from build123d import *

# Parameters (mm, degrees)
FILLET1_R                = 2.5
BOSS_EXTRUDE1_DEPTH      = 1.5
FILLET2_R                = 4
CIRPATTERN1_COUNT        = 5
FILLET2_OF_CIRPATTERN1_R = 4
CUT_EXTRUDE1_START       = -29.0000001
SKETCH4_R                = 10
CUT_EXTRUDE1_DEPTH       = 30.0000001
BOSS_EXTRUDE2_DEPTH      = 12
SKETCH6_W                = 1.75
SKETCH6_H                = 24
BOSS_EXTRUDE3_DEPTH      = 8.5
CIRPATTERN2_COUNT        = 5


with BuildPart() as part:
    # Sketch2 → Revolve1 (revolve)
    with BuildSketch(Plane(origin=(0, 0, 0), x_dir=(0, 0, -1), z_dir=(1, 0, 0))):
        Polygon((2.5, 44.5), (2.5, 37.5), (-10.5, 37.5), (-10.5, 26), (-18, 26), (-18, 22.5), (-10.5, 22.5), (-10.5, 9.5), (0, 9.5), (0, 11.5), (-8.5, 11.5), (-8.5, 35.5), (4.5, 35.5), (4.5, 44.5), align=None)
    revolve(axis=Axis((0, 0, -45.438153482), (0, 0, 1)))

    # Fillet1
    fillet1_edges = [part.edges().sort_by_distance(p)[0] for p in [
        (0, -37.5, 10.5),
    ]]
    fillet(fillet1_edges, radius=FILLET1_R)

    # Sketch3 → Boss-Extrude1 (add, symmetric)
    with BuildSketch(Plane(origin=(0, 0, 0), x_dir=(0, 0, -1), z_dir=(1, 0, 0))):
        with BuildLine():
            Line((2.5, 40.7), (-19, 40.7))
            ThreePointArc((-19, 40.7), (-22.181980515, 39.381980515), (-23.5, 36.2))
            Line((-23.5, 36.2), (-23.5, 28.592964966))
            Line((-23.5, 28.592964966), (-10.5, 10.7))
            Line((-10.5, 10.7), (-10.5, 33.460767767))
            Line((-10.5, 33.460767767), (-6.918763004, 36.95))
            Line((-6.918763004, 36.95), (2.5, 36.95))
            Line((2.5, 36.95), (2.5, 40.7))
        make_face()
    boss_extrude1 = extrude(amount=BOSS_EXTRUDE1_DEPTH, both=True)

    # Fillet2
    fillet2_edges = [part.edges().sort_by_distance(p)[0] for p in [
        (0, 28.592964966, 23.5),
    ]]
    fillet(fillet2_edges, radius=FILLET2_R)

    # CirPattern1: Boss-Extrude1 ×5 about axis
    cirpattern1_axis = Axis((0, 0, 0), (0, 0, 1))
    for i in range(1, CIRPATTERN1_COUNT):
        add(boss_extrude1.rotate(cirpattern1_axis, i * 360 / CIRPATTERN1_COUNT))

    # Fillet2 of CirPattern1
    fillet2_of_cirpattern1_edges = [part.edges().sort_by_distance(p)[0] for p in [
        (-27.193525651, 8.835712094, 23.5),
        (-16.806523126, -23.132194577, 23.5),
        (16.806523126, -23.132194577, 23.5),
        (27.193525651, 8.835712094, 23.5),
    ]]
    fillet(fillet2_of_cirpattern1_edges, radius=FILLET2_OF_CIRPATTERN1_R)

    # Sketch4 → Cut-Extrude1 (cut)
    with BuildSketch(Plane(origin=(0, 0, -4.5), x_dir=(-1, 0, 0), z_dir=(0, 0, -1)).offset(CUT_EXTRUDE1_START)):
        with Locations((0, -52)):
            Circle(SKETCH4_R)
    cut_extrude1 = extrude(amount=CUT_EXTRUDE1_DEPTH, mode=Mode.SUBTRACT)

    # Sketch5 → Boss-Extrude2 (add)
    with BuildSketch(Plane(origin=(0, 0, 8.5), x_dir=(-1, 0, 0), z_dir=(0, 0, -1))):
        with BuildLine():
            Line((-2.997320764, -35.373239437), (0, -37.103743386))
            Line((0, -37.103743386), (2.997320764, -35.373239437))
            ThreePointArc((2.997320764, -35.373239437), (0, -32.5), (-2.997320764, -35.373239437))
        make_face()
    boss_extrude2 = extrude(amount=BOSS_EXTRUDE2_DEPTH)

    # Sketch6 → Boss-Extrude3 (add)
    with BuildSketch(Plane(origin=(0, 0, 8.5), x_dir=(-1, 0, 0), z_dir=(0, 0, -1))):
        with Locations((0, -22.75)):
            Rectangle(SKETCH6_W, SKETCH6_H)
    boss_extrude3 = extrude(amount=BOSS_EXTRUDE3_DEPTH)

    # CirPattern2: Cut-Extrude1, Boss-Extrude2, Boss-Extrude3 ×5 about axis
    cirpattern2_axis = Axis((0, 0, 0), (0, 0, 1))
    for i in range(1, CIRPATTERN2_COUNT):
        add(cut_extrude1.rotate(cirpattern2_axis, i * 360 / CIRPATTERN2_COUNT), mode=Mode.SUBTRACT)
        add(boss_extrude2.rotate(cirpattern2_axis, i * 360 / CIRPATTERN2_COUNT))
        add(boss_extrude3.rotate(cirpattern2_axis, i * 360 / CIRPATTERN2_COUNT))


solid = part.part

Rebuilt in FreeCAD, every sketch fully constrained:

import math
import FreeCAD as App
import Part
import Sketcher
from FreeCAD import Vector
Q = App.Units.Quantity


def edges_at(feature, points):
    """Names of the edges that pass closest to the given points."""
    edges = feature.Shape.Edges
    near = lambda p: min(range(len(edges)), key=lambda i: edges[i].distToShape(Part.Vertex(*p))[0])
    return sorted({f"Edge{near(p) + 1}" for p in points})


def add_polygon(sketch, points):
    """Adds a closed chain of lines whose ends are joined by coincident constraints."""
    first, n = sketch.GeometryCount, len(points)
    for a, b in zip(points, points[1:] + points[:1]):
        sketch.addGeometry(Part.LineSegment(App.Vector(*a, 0), App.Vector(*b, 0)), False)
    for i in range(n):
        sketch.addConstraint(Sketcher.Constraint("Coincident", first + i, 2, first + (i + 1) % n, 1))

doc = App.newDocument("Part")
body = doc.addObject("PartDesign::Body", "Body")

sketch1 = body.newObject("Sketcher::SketchObject", "Sketch")
sketch1.AttachmentSupport = (doc.getObject("YZ_Plane"), [""])
sketch1.MapMode = "FlatFace"
add_polygon(sketch1, [(44.5, -2.5), (37.5, -2.5), (37.5, 10.5), (26, 10.5), (26, 18), (22.5, 18), (22.5, 10.5), (9.5, 10.5), (9.5, 0), (11.5, 0), (11.5, 8.5), (35.5, 8.5), (35.5, -4.5), (44.5, -4.5)])
sketch1.addConstraint(Sketcher.Constraint("Horizontal", 0))
sketch1.addConstraint(Sketcher.Constraint("Vertical", 1))
sketch1.addConstraint(Sketcher.Constraint("Horizontal", 2))
sketch1.addConstraint(Sketcher.Constraint("Vertical", 3))
sketch1.addConstraint(Sketcher.Constraint("Horizontal", 4))
sketch1.addConstraint(Sketcher.Constraint("Vertical", 5))
sketch1.addConstraint(Sketcher.Constraint("Horizontal", 6))
sketch1.addConstraint(Sketcher.Constraint("Vertical", 7))
sketch1.addConstraint(Sketcher.Constraint("Horizontal", 8))
sketch1.addConstraint(Sketcher.Constraint("Vertical", 9))
sketch1.addConstraint(Sketcher.Constraint("Horizontal", 10))
sketch1.addConstraint(Sketcher.Constraint("Vertical", 11))
sketch1.addConstraint(Sketcher.Constraint("Horizontal", 12))
sketch1.addConstraint(Sketcher.Constraint("Vertical", 13))
sketch1.addConstraint(Sketcher.Constraint("PointOnObject", 7, 2, -1))
sketch1.addConstraint(Sketcher.Constraint("Horizontal", 2, 2, 5, 2))
sketch1.addConstraint(Sketcher.Constraint("Equal", 6, 1))
sketch1.addConstraint(Sketcher.Constraint("Equal", 1, 11))
sketch1.addConstraint(Sketcher.Constraint("Equal", 8, 13))
sketch1.addConstraint(Sketcher.Constraint("DistanceX", 0, 2, 0, 1, Q("7 mm")))
sketch1.addConstraint(Sketcher.Constraint("DistanceX", 6, 2, 6, 1, Q("13 mm")))
sketch1.addConstraint(Sketcher.Constraint("DistanceX", 8, 1, 8, 2, Q("2 mm")))
sketch1.addConstraint(Sketcher.Constraint("DistanceX", 10, 1, 10, 2, Q("24 mm")))
sketch1.addConstraint(Sketcher.Constraint("DistanceX", 12, 1, 12, 2, Q("9 mm")))
sketch1.addConstraint(Sketcher.Constraint("DistanceX", 2, 2, 2, 1, Q("11.5 mm")))
sketch1.addConstraint(Sketcher.Constraint("DistanceY", 3, 1, 3, 2, Q("7.5 mm")))
sketch1.addConstraint(Sketcher.Constraint("DistanceY", 7, 2, 7, 1, Q("10.5 mm")))
sketch1.addConstraint(Sketcher.Constraint("DistanceX", -1, 1, 2, 2, Q("26 mm")))
revolution = body.newObject("PartDesign::Revolution", "Revolution")
revolution.Profile = sketch1
revolution.ReferenceAxis = (sketch1, ["V_Axis"])
revolution.Angle = 360
doc.recompute()

fillet = body.newObject("PartDesign::Fillet", "Fillet")
fillet.Base = (revolution, edges_at(revolution, [(0, -37.5, 10.5)]))
fillet.Radius = 2.5

sketch2 = body.newObject("Sketcher::SketchObject", "Sketch001")
sketch2.AttachmentSupport = (doc.getObject("YZ_Plane"), [""])
sketch2.MapMode = "FlatFace"
sketch2.addGeometry(Part.LineSegment(Vector(40.7, -2.5, 0), Vector(40.7, 19, 0)), False)
sketch2.addGeometry(Part.ArcOfCircle(Part.Circle(Vector(36.2, 19, 0), Vector(0, 0, 1), 4.5), math.radians(0), math.radians(90)), False)
sketch2.addGeometry(Part.LineSegment(Vector(36.2, 23.5, 0), Vector(28.6, 23.5, 0)), False)
sketch2.addGeometry(Part.LineSegment(Vector(28.6, 23.5, 0), Vector(10.7, 10.5, 0)), False)
sketch2.addGeometry(Part.LineSegment(Vector(10.7, 10.5, 0), Vector(33.5, 10.5, 0)), False)
sketch2.addGeometry(Part.LineSegment(Vector(33.5, 10.5, 0), Vector(37, 6.9, 0)), False)
sketch2.addGeometry(Part.LineSegment(Vector(37, 6.9, 0), Vector(37, -2.5, 0)), False)
sketch2.addGeometry(Part.LineSegment(Vector(37, -2.5, 0), Vector(40.7, -2.5, 0)), False)
sketch2.addConstraint(Sketcher.Constraint("Tangent", 0, 2, 1, 1))
sketch2.addConstraint(Sketcher.Constraint("Tangent", 1, 2, 2, 1))
sketch2.addConstraint(Sketcher.Constraint("Coincident", 2, 2, 3, 1))
sketch2.addConstraint(Sketcher.Constraint("Coincident", 3, 2, 4, 1))
sketch2.addConstraint(Sketcher.Constraint("Coincident", 4, 2, 5, 1))
sketch2.addConstraint(Sketcher.Constraint("Coincident", 5, 2, 6, 1))
sketch2.addConstraint(Sketcher.Constraint("Coincident", 6, 2, 7, 1))
sketch2.addConstraint(Sketcher.Constraint("Coincident", 7, 2, 0, 1))
sketch2.addConstraint(Sketcher.Constraint("Vertical", 0))
sketch2.addConstraint(Sketcher.Constraint("Horizontal", 2))
sketch2.addConstraint(Sketcher.Constraint("Horizontal", 4))
sketch2.addConstraint(Sketcher.Constraint("Vertical", 6))
sketch2.addConstraint(Sketcher.Constraint("Horizontal", 7))
sketch2.addConstraint(Sketcher.Constraint("Radius", 1, Q("4.5 mm")))
sketch2.addConstraint(Sketcher.Constraint("Angle", 3, Q("-144 deg")))
sketch2.addConstraint(Sketcher.Constraint("Distance", 5, Q("5 mm")))
sketch2.addConstraint(Sketcher.Constraint("DistanceY", 0, 1, 0, 2, Q("21.5 mm")))
sketch2.addConstraint(Sketcher.Constraint("DistanceY", -1, 1, 1, 3, Q("19 mm")))
sketch2.addConstraint(Sketcher.Constraint("DistanceY", 3, 2, 2, 2, Q("13 mm")))
sketch2.addConstraint(Sketcher.Constraint("DistanceX", 3, 2, 0, 2, Q("30 mm")))
sketch2.addConstraint(Sketcher.Constraint("DistanceX", 7, 1, 7, 2, Q("3.75 mm")))
sketch2.addConstraint(Sketcher.Constraint("DistanceX", -1, 1, 1, 3, Q("36.2 mm")))
sketch2.addConstraint(Sketcher.Constraint("DistanceX", 4, 1, 4, 2, Q("22.760768 mm")))
pad1 = body.newObject("PartDesign::Pad", "Pad")
pad1.Profile = sketch2
pad1.Length = 3
pad1.Midplane = True
doc.recompute()

fillet2 = body.newObject("PartDesign::Fillet", "Fillet001")
fillet2.Base = (pad1, edges_at(pad1, [(0, 28.593, 23.5)]))
fillet2.Radius = 4
doc.recompute()

polarpattern = body.newObject("PartDesign::PolarPattern", "PolarPattern")
polarpattern.Originals = [pad1]
polarpattern.Axis = (doc.getObject("Z_Axis"), [""])
polarpattern.Angle = 360
polarpattern.Occurrences = 5
body.Tip = polarpattern
doc.recompute()

fillet3 = body.newObject("PartDesign::Fillet", "Fillet002")
fillet3.Base = (polarpattern, edges_at(polarpattern, [
    (-27.194, 8.836, 23.5),
    (-16.807, -23.132, 23.5),
    (16.807, -23.132, 23.5),
    (27.194, 8.836, 23.5),
]))
fillet3.Radius = 4

sketch3 = body.newObject("Sketcher::SketchObject", "Sketch002")
sketch3.AttachmentSupport = (doc.getObject("XY_Plane"), [""])
sketch3.MapMode = "FlatFace"
sketch3.AttachmentOffset = App.Placement(Vector(0, 0, 24.5), App.Rotation())
sketch3.addGeometry(Part.Circle(Vector(0, -52, 0), Vector(0, 0, 1), 10), False)
sketch3.addConstraint(Sketcher.Constraint("PointOnObject", 0, 3, -2))
sketch3.addConstraint(Sketcher.Constraint("Diameter", 0, Q("20 mm")))
sketch3.addConstraint(Sketcher.Constraint("DistanceY", 0, 3, -1, 1, Q("52 mm")))
pocket1 = body.newObject("PartDesign::Pocket", "Pocket")
pocket1.Profile = sketch3
pocket1.Length = 30

sketch4 = body.newObject("Sketcher::SketchObject", "Sketch003")
sketch4.AttachmentSupport = (doc.getObject("XY_Plane"), [""])
sketch4.MapMode = "FlatFace"
sketch4.AttachmentOffset = App.Placement(Vector(0, 0, 8.5), App.Rotation())
sketch4.addGeometry(Part.LineSegment(Vector(3, -35.4, 0), Vector(0, -37.1, 0)), False)
sketch4.addGeometry(Part.LineSegment(Vector(0, -37.1, 0), Vector(-3, -35.4, 0)), False)
sketch4.addGeometry(Part.ArcOfCircle(Part.Circle(Vector(0, -35.5, 0), Vector(0, 0, 1), 3), math.radians(2), math.radians(178)), False)
sketch4.addConstraint(Sketcher.Constraint("Coincident", 0, 2, 1, 1))
sketch4.addConstraint(Sketcher.Constraint("Coincident", 1, 2, 2, 2))
sketch4.addConstraint(Sketcher.Constraint("Coincident", 2, 1, 0, 1))
sketch4.addConstraint(Sketcher.Constraint("Symmetric", 1, 2, 2, 1, -2))
sketch4.addConstraint(Sketcher.Constraint("PointOnObject", 0, 2, -2))
sketch4.addConstraint(Sketcher.Constraint("Radius", 2, Q("3 mm")))
sketch4.addConstraint(Sketcher.Constraint("Angle", 0, Q("-150 deg")))
sketch4.addConstraint(Sketcher.Constraint("DistanceY", 2, 3, -1, 1, Q("35.5 mm")))
sketch4.addConstraint(Sketcher.Constraint("DistanceX", 1, 2, -1, 1, Q("2.997321 mm")))
pad2 = body.newObject("PartDesign::Pad", "Pad001")
pad2.Profile = sketch4
pad2.Length = 12
pad2.Reversed = True

sketch5 = body.newObject("Sketcher::SketchObject", "Sketch004")
sketch5.AttachmentSupport = (doc.getObject("XY_Plane"), [""])
sketch5.MapMode = "FlatFace"
sketch5.AttachmentOffset = App.Placement(Vector(0, 0, 8.5), App.Rotation())
add_polygon(sketch5, [(0.9, -10.8), (0.9, -34.8), (-0.9, -34.8), (-0.9, -10.8)])
sketch5.addConstraint(Sketcher.Constraint("Vertical", 0))
sketch5.addConstraint(Sketcher.Constraint("Horizontal", 1))
sketch5.addConstraint(Sketcher.Constraint("Vertical", 2))
sketch5.addConstraint(Sketcher.Constraint("Horizontal", 3))
sketch5.addConstraint(Sketcher.Constraint("DistanceY", 0, 2, 0, 1, Q("24 mm")))
sketch5.addConstraint(Sketcher.Constraint("DistanceX", 1, 2, 1, 1, Q("1.75 mm")))
sketch5.addConstraint(Sketcher.Constraint("DistanceY", 0, 2, -1, 1, Q("34.75 mm")))
sketch5.addConstraint(Sketcher.Constraint("DistanceX", -1, 1, 0, 2, Q("0.875 mm")))
pad3 = body.newObject("PartDesign::Pad", "Pad002")
pad3.Profile = sketch5
pad3.Length = 8.5
pad3.Reversed = True
doc.recompute()

polarpattern2 = body.newObject("PartDesign::PolarPattern", "PolarPattern001")
polarpattern2.Originals = [pocket1, pad2, pad3]
polarpattern2.Axis = (doc.getObject("Z_Axis"), [""])
polarpattern2.Angle = 360
polarpattern2.Occurrences = 5
body.Tip = polarpattern2

doc.recompute()
